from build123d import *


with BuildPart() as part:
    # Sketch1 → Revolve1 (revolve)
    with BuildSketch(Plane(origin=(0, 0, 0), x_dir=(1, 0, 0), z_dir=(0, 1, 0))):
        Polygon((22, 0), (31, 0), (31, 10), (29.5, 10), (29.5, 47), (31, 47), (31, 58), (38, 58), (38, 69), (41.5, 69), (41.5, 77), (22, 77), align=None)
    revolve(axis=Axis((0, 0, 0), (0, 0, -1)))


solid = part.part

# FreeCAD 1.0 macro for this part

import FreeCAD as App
import Part
import Sketcher
from FreeCAD import Vector
Q = App.Units.Quantity


def add_polygon(sketch, points):
    """Adds a closed chain of lines whose ends are joined by coincident constraints."""
    first, n = sketch.GeometryCount, len(points)
    for a, b in zip(points, points[1:] + points[:1]):
        sketch.addGeometry(Part.LineSegment(App.Vector(*a, 0), App.Vector(*b, 0)), False)
    for i in range(n):
        sketch.addConstraint(Sketcher.Constraint("Coincident", first + i, 2, first + (i + 1) % n, 1))

doc = App.newDocument("Part")
body = doc.addObject("PartDesign::Body", "Body")

sketch1 = doc.addObject("Sketcher::SketchObject", "Sketch")
body.addObject(sketch1)
sketch1.AttachmentSupport = (doc.XZ_Plane, [""])
sketch1.MapMode = "FlatFace"
add_polygon(sketch1, [(22, 0), (31, 0), (31, -10), (29.5, -10), (29.5, -47), (31, -47), (31, -58), (38, -58), (38, -69), (41.5, -69), (41.5, -77), (22, -77)])
sketch1.addConstraint([
    Sketcher.Constraint("Horizontal", 0),
    Sketcher.Constraint("Vertical", 1),
    Sketcher.Constraint("Horizontal", 2),
    Sketcher.Constraint("Vertical", 3),
    Sketcher.Constraint("Horizontal", 4),
    Sketcher.Constraint("Vertical", 5),
    Sketcher.Constraint("Horizontal", 6),
    Sketcher.Constraint("Vertical", 7),
    Sketcher.Constraint("Horizontal", 8),
    Sketcher.Constraint("Vertical", 9),
    Sketcher.Constraint("Horizontal", 10),
    Sketcher.Constraint("Vertical", 11),
    Sketcher.Constraint("PointOnObject", 0, 2, -1),
    Sketcher.Constraint("Vertical", 1, 2, 4, 2),
    Sketcher.Constraint("Equal", 5, 7),
    Sketcher.Constraint("DistanceX", 0, 1, 0, 2, Q("9 mm")),
    Sketcher.Constraint("DistanceX", 6, 1, 6, 2, Q("7 mm")),
    Sketcher.Constraint("DistanceY", 1, 2, 1, 1, Q("10 mm")),
    Sketcher.Constraint("DistanceY", 3, 2, 3, 1, Q("37 mm")),
    Sketcher.Constraint("DistanceY", 5, 2, 5, 1, Q("11 mm")),
    Sketcher.Constraint("DistanceY", 9, 2, 9, 1, Q("8 mm")),
    Sketcher.Constraint("DistanceX", 2, 2, 2, 1, Q("1.5 mm")),
    Sketcher.Constraint("DistanceX", 8, 1, 8, 2, Q("3.5 mm")),
    Sketcher.Constraint("DistanceX", -1, 1, 0, 2, Q("31 mm")),
])
revolution = doc.addObject("PartDesign::Revolution", "Revolution")
body.addObject(revolution)
revolution.Profile = sketch1
revolution.ReferenceAxis = (sketch1, ["V_Axis"])
revolution.Angle = 360

doc.recompute()
